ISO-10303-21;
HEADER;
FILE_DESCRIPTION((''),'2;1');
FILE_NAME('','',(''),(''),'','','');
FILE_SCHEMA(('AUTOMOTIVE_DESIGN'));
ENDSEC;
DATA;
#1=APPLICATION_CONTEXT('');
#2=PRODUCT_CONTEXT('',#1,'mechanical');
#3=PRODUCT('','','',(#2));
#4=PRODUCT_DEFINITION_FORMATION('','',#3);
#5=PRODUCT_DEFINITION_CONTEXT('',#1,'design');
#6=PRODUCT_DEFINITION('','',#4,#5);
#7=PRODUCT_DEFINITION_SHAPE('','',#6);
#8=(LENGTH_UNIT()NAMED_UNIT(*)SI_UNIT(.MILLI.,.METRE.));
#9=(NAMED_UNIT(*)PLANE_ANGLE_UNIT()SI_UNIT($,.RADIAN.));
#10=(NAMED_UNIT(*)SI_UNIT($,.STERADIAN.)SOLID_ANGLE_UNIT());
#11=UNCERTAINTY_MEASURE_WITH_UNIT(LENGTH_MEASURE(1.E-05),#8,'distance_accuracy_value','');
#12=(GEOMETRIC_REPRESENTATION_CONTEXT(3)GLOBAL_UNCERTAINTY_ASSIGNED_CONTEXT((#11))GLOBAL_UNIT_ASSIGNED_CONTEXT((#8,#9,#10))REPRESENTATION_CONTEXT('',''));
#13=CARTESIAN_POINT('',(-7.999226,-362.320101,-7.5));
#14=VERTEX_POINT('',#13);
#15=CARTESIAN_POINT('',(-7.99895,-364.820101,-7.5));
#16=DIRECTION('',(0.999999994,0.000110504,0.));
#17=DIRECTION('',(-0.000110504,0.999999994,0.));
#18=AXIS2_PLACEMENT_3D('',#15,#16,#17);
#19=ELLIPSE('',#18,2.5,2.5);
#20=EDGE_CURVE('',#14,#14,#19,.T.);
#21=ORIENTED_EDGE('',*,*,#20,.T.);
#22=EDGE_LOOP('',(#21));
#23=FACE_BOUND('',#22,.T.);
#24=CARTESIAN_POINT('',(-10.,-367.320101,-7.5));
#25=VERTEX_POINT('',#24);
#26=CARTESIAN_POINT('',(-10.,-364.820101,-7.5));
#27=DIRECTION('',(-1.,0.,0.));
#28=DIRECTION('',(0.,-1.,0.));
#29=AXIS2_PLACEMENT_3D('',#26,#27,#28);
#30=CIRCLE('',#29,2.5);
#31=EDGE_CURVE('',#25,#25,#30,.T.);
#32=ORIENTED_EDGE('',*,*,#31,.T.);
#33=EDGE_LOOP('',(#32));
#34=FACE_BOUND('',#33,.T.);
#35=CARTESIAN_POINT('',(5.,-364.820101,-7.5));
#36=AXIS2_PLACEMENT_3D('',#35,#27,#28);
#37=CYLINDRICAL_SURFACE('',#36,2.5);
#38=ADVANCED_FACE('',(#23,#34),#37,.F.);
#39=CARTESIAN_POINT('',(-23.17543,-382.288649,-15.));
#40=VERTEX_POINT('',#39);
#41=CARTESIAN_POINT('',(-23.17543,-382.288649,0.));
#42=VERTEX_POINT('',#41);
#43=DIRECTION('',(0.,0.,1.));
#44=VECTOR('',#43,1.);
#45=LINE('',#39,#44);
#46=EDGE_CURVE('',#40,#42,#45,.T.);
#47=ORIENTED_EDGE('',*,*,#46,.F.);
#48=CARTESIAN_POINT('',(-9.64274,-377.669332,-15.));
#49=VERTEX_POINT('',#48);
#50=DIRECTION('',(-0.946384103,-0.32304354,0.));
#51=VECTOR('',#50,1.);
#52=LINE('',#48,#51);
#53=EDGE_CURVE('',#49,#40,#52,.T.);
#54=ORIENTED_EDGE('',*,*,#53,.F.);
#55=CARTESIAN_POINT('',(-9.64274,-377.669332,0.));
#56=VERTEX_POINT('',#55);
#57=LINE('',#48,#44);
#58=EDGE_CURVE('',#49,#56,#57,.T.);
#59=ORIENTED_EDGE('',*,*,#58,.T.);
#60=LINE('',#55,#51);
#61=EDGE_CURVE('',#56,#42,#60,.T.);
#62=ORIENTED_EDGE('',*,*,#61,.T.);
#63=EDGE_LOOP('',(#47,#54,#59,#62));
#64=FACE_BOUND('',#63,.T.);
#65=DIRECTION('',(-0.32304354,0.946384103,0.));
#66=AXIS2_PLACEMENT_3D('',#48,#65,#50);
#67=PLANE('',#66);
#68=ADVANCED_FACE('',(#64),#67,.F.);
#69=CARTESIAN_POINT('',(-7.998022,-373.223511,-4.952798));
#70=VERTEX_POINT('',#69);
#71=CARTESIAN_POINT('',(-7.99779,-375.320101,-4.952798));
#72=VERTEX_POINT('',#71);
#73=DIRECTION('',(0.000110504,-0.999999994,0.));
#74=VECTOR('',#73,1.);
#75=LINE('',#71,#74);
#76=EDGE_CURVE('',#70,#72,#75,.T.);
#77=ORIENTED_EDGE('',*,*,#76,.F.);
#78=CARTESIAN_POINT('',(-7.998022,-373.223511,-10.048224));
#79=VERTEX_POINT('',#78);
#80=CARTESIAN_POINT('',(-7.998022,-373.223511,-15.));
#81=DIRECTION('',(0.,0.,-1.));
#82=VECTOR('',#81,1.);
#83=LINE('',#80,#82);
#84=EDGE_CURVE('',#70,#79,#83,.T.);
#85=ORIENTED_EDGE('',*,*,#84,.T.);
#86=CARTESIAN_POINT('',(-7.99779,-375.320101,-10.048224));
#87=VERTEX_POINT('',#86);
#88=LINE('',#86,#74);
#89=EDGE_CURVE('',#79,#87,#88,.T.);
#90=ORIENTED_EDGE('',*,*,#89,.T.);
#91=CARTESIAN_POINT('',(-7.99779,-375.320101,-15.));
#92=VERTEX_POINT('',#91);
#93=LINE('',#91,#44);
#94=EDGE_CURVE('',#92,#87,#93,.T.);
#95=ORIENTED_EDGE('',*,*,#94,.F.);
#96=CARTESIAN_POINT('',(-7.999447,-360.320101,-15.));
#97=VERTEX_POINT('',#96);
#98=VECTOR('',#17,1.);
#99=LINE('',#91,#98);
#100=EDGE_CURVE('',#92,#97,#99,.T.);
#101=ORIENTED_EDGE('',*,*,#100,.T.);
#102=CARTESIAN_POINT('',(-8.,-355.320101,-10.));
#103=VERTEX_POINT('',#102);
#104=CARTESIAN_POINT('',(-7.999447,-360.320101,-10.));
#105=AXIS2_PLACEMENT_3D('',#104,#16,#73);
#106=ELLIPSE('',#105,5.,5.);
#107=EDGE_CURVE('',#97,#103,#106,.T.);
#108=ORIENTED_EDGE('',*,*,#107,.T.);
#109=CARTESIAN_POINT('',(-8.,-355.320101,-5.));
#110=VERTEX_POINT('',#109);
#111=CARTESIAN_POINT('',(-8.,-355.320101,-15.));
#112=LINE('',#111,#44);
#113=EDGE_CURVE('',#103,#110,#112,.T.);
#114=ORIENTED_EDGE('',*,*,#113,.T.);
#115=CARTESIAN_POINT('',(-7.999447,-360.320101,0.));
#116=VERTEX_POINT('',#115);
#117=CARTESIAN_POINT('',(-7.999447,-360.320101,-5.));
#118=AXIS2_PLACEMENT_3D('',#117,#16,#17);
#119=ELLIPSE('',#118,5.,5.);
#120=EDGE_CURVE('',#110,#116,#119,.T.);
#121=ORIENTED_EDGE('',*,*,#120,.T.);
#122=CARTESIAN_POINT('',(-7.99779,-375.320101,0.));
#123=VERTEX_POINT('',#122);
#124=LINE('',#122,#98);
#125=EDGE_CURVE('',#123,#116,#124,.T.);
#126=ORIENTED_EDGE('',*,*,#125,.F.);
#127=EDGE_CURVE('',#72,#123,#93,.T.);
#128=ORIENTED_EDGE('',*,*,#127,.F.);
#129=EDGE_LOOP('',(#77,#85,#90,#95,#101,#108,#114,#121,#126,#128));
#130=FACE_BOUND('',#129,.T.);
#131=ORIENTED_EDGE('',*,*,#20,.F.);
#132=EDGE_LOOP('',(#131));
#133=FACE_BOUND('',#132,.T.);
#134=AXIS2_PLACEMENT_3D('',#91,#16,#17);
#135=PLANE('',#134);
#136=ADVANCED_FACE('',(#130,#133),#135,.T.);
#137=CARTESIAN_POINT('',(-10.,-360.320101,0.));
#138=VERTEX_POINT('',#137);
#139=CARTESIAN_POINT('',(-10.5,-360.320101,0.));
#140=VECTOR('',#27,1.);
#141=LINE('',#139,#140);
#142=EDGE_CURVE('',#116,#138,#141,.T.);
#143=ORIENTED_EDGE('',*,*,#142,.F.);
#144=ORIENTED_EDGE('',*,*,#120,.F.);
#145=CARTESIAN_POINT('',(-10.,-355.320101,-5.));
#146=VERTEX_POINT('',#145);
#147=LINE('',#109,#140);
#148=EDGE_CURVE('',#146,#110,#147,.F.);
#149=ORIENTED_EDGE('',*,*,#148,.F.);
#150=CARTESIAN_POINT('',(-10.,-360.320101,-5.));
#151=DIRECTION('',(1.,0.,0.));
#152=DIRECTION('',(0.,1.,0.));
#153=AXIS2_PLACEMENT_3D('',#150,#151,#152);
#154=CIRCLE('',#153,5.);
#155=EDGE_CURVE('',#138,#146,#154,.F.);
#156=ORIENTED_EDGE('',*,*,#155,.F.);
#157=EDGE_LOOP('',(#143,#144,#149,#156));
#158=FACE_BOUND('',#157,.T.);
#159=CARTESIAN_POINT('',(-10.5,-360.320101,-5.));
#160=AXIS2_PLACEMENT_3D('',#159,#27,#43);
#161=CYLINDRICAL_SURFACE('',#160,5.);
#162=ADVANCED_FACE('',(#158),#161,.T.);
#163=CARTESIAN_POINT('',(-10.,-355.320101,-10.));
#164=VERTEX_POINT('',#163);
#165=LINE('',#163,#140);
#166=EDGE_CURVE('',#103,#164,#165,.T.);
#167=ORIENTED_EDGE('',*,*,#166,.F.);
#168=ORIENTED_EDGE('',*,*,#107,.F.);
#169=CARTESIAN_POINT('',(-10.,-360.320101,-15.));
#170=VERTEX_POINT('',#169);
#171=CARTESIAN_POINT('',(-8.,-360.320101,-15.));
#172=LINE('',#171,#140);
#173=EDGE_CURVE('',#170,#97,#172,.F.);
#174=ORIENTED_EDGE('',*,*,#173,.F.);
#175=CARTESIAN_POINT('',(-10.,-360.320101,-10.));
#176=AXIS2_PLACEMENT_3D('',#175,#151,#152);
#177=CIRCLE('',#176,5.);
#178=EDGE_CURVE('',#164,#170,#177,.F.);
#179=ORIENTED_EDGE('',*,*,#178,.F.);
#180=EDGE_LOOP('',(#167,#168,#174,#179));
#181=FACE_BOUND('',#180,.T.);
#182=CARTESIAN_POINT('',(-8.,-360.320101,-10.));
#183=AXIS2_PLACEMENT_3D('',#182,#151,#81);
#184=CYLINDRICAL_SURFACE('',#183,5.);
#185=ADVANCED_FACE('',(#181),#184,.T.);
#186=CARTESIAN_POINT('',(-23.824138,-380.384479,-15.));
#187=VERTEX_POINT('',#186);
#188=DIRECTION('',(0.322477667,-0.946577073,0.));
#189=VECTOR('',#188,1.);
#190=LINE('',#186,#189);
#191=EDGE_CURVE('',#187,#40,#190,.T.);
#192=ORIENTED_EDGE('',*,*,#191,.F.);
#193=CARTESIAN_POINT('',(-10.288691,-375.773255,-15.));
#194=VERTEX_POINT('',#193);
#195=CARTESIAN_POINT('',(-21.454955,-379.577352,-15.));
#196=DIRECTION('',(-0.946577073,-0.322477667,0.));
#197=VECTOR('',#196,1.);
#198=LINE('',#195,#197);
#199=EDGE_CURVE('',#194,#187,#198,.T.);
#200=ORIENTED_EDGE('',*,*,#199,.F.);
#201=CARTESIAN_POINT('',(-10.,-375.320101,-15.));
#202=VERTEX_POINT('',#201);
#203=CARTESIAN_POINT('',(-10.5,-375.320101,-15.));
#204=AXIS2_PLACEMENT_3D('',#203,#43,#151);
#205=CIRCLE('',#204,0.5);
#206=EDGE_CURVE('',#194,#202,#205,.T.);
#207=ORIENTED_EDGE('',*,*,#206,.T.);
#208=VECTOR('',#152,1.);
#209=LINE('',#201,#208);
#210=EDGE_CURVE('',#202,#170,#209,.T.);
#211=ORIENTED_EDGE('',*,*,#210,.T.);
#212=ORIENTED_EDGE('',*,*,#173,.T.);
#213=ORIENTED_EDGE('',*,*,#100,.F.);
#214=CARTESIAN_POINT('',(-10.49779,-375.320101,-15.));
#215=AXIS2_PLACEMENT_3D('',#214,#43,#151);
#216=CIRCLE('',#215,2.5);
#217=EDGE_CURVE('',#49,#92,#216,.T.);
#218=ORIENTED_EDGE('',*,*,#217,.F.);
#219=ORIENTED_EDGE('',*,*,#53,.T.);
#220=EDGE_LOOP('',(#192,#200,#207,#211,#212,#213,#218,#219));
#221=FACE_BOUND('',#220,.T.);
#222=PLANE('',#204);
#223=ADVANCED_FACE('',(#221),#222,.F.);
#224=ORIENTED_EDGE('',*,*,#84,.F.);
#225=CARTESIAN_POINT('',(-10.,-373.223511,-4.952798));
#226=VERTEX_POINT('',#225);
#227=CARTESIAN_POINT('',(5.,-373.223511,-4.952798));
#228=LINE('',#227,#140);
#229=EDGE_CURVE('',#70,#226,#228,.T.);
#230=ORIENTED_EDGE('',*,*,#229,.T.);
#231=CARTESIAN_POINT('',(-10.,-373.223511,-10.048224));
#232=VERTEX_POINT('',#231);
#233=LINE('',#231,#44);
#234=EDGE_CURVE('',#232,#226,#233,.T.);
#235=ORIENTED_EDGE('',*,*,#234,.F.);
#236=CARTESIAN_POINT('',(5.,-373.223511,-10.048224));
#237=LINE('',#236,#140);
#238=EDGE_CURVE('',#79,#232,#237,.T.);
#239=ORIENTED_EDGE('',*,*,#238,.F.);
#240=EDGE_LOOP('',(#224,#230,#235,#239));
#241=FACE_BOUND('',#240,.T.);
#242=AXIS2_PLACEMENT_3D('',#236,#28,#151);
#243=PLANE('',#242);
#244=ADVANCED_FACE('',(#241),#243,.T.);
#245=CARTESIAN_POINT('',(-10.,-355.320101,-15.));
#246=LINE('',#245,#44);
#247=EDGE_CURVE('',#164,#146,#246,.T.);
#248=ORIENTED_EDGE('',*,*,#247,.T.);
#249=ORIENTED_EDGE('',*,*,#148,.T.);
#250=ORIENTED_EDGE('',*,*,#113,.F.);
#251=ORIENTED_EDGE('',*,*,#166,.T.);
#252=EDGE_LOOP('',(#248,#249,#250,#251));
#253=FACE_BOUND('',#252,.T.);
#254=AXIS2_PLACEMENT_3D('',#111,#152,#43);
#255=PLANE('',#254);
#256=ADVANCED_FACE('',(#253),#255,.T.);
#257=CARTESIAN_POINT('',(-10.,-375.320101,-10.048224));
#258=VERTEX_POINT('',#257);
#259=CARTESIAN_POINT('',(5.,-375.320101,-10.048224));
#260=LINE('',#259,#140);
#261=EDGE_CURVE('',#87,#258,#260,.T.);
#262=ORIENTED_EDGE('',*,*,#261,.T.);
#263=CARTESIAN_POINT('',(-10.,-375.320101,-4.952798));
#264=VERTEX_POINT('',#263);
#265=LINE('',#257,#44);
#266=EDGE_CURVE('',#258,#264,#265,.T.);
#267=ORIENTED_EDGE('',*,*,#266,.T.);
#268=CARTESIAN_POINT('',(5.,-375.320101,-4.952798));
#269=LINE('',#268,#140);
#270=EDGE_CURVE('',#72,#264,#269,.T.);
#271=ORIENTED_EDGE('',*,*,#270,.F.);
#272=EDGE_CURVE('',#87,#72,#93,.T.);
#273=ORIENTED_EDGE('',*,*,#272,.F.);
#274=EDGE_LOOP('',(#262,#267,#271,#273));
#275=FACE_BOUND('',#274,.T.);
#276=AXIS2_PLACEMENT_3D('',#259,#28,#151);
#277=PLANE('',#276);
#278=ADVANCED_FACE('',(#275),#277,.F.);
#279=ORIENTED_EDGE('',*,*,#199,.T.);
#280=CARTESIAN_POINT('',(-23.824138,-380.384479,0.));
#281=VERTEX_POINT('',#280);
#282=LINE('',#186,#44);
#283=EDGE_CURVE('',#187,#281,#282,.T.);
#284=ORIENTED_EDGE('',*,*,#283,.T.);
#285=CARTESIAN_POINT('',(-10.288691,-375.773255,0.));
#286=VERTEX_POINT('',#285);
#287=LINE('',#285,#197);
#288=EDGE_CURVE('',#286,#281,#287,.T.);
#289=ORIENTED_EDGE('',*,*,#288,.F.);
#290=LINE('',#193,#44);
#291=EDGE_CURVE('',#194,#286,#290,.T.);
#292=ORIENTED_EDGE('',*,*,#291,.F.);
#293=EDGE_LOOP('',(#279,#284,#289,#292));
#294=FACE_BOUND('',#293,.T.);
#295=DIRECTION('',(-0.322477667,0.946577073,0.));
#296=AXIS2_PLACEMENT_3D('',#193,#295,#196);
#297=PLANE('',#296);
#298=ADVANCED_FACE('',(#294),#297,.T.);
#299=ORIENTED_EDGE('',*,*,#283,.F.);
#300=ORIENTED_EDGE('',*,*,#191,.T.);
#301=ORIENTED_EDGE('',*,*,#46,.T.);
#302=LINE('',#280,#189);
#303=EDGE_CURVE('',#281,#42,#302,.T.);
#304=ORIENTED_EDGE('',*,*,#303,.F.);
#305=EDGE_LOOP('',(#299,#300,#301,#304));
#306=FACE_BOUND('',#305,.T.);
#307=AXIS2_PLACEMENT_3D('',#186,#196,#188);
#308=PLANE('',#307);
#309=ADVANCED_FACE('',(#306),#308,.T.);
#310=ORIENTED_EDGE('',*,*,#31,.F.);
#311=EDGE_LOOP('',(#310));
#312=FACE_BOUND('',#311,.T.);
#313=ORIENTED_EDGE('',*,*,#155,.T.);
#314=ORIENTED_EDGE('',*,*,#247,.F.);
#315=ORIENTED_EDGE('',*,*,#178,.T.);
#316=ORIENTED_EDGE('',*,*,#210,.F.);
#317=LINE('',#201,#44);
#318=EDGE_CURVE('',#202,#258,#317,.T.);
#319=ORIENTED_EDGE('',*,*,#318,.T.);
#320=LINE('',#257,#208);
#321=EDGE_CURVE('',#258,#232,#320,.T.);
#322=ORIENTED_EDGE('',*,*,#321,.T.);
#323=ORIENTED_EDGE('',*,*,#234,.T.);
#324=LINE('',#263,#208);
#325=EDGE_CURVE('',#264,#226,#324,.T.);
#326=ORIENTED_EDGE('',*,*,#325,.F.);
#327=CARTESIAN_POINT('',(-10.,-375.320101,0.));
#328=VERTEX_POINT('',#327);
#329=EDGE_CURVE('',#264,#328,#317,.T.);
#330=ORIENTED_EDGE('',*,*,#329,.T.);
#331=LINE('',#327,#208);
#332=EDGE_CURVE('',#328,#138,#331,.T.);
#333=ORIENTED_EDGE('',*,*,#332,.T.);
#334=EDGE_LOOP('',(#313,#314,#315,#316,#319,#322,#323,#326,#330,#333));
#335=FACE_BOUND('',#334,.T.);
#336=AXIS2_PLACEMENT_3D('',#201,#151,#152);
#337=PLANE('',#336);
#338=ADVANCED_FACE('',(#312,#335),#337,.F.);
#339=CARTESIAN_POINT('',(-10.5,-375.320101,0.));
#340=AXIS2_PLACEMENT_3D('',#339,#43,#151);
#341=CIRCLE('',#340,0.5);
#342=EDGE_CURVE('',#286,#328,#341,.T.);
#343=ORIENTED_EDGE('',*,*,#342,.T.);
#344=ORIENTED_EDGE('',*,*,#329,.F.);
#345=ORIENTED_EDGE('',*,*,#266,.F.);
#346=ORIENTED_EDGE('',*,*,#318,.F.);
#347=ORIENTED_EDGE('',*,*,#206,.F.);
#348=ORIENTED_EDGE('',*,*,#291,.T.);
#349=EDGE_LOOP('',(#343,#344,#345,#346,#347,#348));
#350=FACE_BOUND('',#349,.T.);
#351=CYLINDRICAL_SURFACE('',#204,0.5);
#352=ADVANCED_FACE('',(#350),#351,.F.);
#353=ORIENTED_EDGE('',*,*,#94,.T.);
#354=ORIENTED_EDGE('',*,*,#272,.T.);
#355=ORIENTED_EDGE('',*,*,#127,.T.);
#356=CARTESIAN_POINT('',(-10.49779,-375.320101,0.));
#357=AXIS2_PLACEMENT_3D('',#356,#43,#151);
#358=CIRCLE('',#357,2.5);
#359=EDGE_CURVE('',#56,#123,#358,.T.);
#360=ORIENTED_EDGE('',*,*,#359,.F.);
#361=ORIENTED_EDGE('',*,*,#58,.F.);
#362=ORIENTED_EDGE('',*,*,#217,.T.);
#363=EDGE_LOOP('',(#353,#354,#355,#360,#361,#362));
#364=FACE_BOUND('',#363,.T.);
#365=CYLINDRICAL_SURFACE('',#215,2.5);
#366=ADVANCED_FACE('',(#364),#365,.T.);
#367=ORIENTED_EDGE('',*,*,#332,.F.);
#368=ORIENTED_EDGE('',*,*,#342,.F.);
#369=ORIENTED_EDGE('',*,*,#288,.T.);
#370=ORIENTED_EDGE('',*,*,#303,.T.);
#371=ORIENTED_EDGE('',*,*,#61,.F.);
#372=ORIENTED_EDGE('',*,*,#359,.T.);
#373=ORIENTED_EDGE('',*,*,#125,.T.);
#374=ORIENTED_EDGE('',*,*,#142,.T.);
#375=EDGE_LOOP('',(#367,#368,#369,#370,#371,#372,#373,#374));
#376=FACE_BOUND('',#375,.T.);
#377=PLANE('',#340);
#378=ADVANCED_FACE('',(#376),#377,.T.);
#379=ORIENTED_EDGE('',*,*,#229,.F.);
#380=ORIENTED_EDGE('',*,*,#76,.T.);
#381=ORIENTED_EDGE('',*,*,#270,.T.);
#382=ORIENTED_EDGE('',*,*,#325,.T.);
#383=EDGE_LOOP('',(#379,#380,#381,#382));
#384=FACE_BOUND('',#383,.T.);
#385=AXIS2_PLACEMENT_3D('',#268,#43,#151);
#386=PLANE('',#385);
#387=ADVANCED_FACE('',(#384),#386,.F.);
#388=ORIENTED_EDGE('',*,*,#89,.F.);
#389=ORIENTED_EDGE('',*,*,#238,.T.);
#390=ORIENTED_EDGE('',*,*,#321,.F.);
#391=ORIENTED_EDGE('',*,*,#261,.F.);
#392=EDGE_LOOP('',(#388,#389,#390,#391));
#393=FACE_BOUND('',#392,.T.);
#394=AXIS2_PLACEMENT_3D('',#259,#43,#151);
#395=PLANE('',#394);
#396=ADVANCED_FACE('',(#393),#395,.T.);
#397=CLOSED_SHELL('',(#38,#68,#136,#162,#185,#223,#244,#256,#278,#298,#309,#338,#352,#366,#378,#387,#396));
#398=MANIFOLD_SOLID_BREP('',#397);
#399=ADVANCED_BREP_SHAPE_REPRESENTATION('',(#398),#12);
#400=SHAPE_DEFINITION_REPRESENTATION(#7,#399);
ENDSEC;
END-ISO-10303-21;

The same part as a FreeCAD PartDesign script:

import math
import FreeCAD as App
import Part
import Sketcher

V = App.Vector
Q = App.Units.Quantity


def edges_at(feature, points):
    """Names of the edges that pass closest to the given points."""
    edges = feature.Shape.Edges
    near = lambda p: min(range(len(edges)), key=lambda i: edges[i].distToShape(Part.Vertex(*p))[0])
    return sorted({f"Edge{near(p) + 1}" for p in points})

doc = App.newDocument("Part")
body = doc.addObject("PartDesign::Body", "Body")

# Sketch on XY plane
sketch1 = body.newObject("Sketcher::SketchObject", "Sketch")
sketch1.AttachmentSupport = (doc.getObject("XY_Plane"), [""])
sketch1.MapMode = "FlatFace"
sketch1.addGeometry(Part.LineSegment(V(-21.454955, -379.577352, 0), V(-23.824138, -380.384479, 0)), False)
sketch1.addGeometry(Part.LineSegment(V(-23.824138, -380.384479, 0), V(-23.17543, -382.288649, 0)), False)
sketch1.addGeometry(Part.LineSegment(V(-23.17543, -382.288649, 0), V(-9.64274, -377.669332, 0)), False)
sketch1.addGeometry(Part.ArcOfCircle(Part.Circle(V(-10.49779, -375.320101, 0), V(0, 0, 1), 2.5), math.radians(-70), math.radians(0)), False)
sketch1.addGeometry(Part.LineSegment(V(-7.99779, -375.320101, 0), V(-8, -355.320101, 0)), False)
sketch1.addGeometry(Part.LineSegment(V(-8, -355.320101, 0), V(-10, -355.320101, 0)), False)
sketch1.addGeometry(Part.LineSegment(V(-10, -355.320101, 0), V(-10, -375.320101, 0)), False)
sketch1.addGeometry(Part.ArcOfCircle(Part.Circle(V(-10.5, -375.320101, 0), V(0, 0, 1), 0.5), math.radians(-65), math.radians(0)), False)
sketch1.addGeometry(Part.LineSegment(V(-10.288691, -375.773255, 0), V(-21.454955, -379.577352, 0)), False)
sketch1.addConstraint(Sketcher.Constraint("Coincident", 0, 2, 1, 1))
sketch1.addConstraint(Sketcher.Constraint("Coincident", 1, 2, 2, 1))
sketch1.addConstraint(Sketcher.Constraint("Coincident", 2, 2, 3, 1))
sketch1.addConstraint(Sketcher.Constraint("Coincident", 3, 2, 4, 1))
sketch1.addConstraint(Sketcher.Constraint("Coincident", 4, 2, 5, 1))
sketch1.addConstraint(Sketcher.Constraint("Coincident", 5, 2, 6, 1))
sketch1.addConstraint(Sketcher.Constraint("Tangent", 6, 2, 7, 2))
sketch1.addConstraint(Sketcher.Constraint("Coincident", 7, 1, 8, 1))
sketch1.addConstraint(Sketcher.Constraint("Coincident", 8, 2, 0, 1))
sketch1.addConstraint(Sketcher.Constraint("Horizontal", 5))
sketch1.addConstraint(Sketcher.Constraint("Vertical", 6))
sketch1.addConstraint(Sketcher.Constraint("Perpendicular", 0, 1))
sketch1.addConstraint(Sketcher.Constraint("Perpendicular", 1, 8))
sketch1.addConstraint(Sketcher.Constraint("Horizontal", 3, 3, 7, 3))
sketch1.addConstraint(Sketcher.Constraint("Horizontal", 7, 3, 3, 2))
sketch1.addConstraint(Sketcher.Constraint("Radius", 3, Q("2.5 mm")))
sketch1.addConstraint(Sketcher.Constraint("Radius", 7, Q("0.5 mm")))
sketch1.addConstraint(Sketcher.Constraint("DistanceX", 5, 2, 5, 1, Q("2 mm")))
sketch1.addConstraint(Sketcher.Constraint("DistanceY", 6, 2, 6, 1, Q("20 mm")))
sketch1.addConstraint(Sketcher.Constraint("DistanceX", 4, 2, -1, 1, Q("8 mm")))
sketch1.addConstraint(Sketcher.Constraint("DistanceY", 3, 3, -1, 1, Q("375.320101 mm")))
sketch1.addConstraint(Sketcher.Constraint("DistanceX", 0, 2, 2, 2, Q("14.181399 mm")))
sketch1.addConstraint(Sketcher.Constraint("DistanceX", 3, 3, 7, 1, Q("0.209099 mm")))
sketch1.addConstraint(Sketcher.Constraint("DistanceX", 3, 3, -1, 1, Q("10.49779 mm")))
sketch1.addConstraint(Sketcher.Constraint("DistanceX", 0, 2, -1, 1, Q("23.824138 mm")))
sketch1.addConstraint(Sketcher.Constraint("DistanceY", 0, 2, -1, 1, Q("380.384479 mm")))
sketch1.addConstraint(Sketcher.Constraint("DistanceX", 1, 2, -1, 1, Q("23.17543 mm")))
sketch1.addConstraint(Sketcher.Constraint("DistanceY", 8, 2, -1, 1, Q("379.577352 mm")))
pad1 = body.newObject("PartDesign::Pad", "Pad")
pad1.Profile = sketch1
pad1.Length = 15
pad1.Reversed = True

# Sketch on YZ plane
sketch2 = body.newObject("Sketcher::SketchObject", "Sketch001")
sketch2.AttachmentSupport = (doc.getObject("YZ_Plane"), [""])
sketch2.MapMode = "FlatFace"
sketch2.AttachmentOffset = App.Placement(V(0, 0, -10), App.Rotation())
sketch2.addGeometry(Part.Circle(V(-364.820101, -7.5, 0), V(0, 0, 1), 2.5), False)
sketch2.addConstraint(Sketcher.Constraint("Diameter", 0, Q("5 mm")))
sketch2.addConstraint(Sketcher.Constraint("DistanceY", 0, 3, -1, 1, Q("7.5 mm")))
sketch2.addConstraint(Sketcher.Constraint("DistanceX", 0, 3, -1, 1, Q("364.820101 mm")))
pocket1 = body.newObject("PartDesign::Pocket", "Pocket")
pocket1.Profile = sketch2
pocket1.Length = 15
pocket1.Reversed = True

# Sketch on YZ plane
sketch3 = body.newObject("Sketcher::SketchObject", "Sketch002")
sketch3.AttachmentSupport = (doc.getObject("YZ_Plane"), [""])
sketch3.MapMode = "FlatFace"
sketch3.AttachmentOffset = App.Placement(V(0, 0, -10), App.Rotation())
sketch3.addGeometry(Part.LineSegment(V(-373.223511, -10.048224, 0), V(-375.320101, -10.048224, 0)), False)
sketch3.addGeometry(Part.LineSegment(V(-375.320101, -10.048224, 0), V(-375.320101, -4.952798, 0)), False)
sketch3.addGeometry(Part.LineSegment(V(-375.320101, -4.952798, 0), V(-373.223511, -4.952798, 0)), False)
sketch3.addGeometry(Part.LineSegment(V(-373.223511, -4.952798, 0), V(-373.223511, -10.048224, 0)), False)
sketch3.addConstraint(Sketcher.Constraint("Coincident", 0, 2, 1, 1))
sketch3.addConstraint(Sketcher.Constraint("Coincident", 1, 2, 2, 1))
sketch3.addConstraint(Sketcher.Constraint("Coincident", 2, 2, 3, 1))
sketch3.addConstraint(Sketcher.Constraint("Coincident", 3, 2, 0, 1))
sketch3.addConstraint(Sketcher.Constraint("Horizontal", 0))
sketch3.addConstraint(Sketcher.Constraint("Vertical", 1))
sketch3.addConstraint(Sketcher.Constraint("Horizontal", 2))
sketch3.addConstraint(Sketcher.Constraint("Vertical", 3))
sketch3.addConstraint(Sketcher.Constraint("DistanceX", 0, 2, 0, 1, Q("2.09659 mm")))
sketch3.addConstraint(Sketcher.Constraint("DistanceX", 0, 2, -1, 1, Q("375.320101 mm")))
sketch3.addConstraint(Sketcher.Constraint("DistanceY", 1, 1, 1, 2, Q("5.095426 mm")))
sketch3.addConstraint(Sketcher.Constraint("DistanceY", 0, 2, -1, 1, Q("10.048224 mm")))
pocket2 = body.newObject("PartDesign::Pocket", "Pocket001")
pocket2.Profile = sketch3
pocket2.Length = 15
pocket2.Reversed = True
doc.recompute()

fillet = body.newObject("PartDesign::Fillet", "Fillet")
fillet.Base = (pocket2, edges_at(pocket2, [(-9, -355.32, 0), (-9, -355.32, -15)]))
fillet.Radius = 5

doc.recompute()
